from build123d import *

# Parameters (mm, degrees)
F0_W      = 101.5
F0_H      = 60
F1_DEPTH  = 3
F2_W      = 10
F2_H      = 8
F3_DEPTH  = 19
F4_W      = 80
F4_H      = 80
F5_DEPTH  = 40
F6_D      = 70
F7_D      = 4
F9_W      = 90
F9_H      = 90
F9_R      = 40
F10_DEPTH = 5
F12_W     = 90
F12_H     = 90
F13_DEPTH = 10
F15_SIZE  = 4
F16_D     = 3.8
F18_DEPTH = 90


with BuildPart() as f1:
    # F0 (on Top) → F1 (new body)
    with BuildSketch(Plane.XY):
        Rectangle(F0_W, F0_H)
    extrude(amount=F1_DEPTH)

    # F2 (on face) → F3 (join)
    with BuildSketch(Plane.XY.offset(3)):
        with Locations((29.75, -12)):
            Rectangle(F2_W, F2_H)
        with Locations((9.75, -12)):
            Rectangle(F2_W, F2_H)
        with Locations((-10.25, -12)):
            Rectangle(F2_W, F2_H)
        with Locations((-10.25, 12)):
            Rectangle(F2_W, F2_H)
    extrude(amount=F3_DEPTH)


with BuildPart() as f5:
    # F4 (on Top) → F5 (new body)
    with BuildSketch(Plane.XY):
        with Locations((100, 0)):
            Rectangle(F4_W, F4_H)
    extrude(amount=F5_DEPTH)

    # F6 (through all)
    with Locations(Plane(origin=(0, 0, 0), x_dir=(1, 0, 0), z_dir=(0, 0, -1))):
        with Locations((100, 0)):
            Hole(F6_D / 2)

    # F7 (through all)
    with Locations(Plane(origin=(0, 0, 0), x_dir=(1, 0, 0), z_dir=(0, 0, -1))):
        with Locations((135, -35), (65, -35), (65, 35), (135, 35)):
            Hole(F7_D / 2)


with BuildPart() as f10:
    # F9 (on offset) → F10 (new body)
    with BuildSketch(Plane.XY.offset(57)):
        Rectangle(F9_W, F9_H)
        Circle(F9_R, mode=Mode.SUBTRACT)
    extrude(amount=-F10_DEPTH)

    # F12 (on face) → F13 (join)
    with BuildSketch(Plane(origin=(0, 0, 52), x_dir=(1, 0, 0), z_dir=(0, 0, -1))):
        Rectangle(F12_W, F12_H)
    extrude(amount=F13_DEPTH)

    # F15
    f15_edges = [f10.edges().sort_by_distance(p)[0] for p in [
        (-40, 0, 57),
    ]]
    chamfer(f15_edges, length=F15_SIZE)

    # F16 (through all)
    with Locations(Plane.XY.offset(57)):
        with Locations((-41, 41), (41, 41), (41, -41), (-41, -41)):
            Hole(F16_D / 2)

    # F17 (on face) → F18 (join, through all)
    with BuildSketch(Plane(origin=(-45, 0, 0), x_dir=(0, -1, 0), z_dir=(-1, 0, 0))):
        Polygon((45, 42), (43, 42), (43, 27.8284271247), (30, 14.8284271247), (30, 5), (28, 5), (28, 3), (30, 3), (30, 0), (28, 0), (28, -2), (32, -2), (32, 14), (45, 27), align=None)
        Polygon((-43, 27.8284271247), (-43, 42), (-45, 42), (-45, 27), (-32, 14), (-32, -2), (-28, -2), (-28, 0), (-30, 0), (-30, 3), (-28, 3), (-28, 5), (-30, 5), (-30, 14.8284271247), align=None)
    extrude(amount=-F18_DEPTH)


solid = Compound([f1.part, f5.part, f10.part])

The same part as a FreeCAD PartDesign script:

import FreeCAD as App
import Part
import Sketcher

V = App.Vector


def edges_at(feature, points):
    """Names of the edges that pass closest to the given points."""
    edges = feature.Shape.Edges
    near = lambda p: min(range(len(edges)), key=lambda i: edges[i].distToShape(Part.Vertex(*p))[0])
    return sorted({f"Edge{near(p) + 1}" for p in points})

doc = App.newDocument("Part")
body = doc.addObject("PartDesign::Body", "Body")

sketch1 = doc.addObject("Sketcher::SketchObject", "Sketch")
body.addObject(sketch1)
sketch1.AttachmentSupport = (doc.XY_Plane, [""])
sketch1.MapMode = "FlatFace"
sketch1.addGeometry(Part.LineSegment(V(-51, 30, 0), V(-51, -30, 0)), False)
sketch1.addGeometry(Part.LineSegment(V(-51, -30, 0), V(51, -30, 0)), False)
sketch1.addGeometry(Part.LineSegment(V(51, -30, 0), V(51, 30, 0)), False)
sketch1.addGeometry(Part.LineSegment(V(51, 30, 0), V(-51, 30, 0)), False)
sketch1.addConstraint(Sketcher.Constraint("Coincident", 0, 2, 1, 1))
sketch1.addConstraint(Sketcher.Constraint("Coincident", 1, 2, 2, 1))
sketch1.addConstraint(Sketcher.Constraint("Coincident", 2, 2, 3, 1))
sketch1.addConstraint(Sketcher.Constraint("Coincident", 3, 2, 0, 1))
sketch1.addConstraint(Sketcher.Constraint("Vertical", 0))
sketch1.addConstraint(Sketcher.Constraint("Horizontal", 1))
sketch1.addConstraint(Sketcher.Constraint("Vertical", 2))
sketch1.addConstraint(Sketcher.Constraint("Horizontal", 3))
sketch1.addConstraint(Sketcher.Constraint("Symmetric", 0, 2, 2, 2, -1, 1))
sketch1.addConstraint(Sketcher.Constraint("DistanceY", 0, 2, 0, 1, 60.0))
sketch1.addConstraint(Sketcher.Constraint("DistanceX", 1, 1, 1, 2, 101.5))
pad1 = doc.addObject("PartDesign::Pad", "Pad")
body.addObject(pad1)
pad1.Profile = sketch1
pad1.Length = 3

sketch2 = doc.addObject("Sketcher::SketchObject", "Sketch001")
body.addObject(sketch2)
sketch2.AttachmentSupport = (doc.XY_Plane, [""])
sketch2.MapMode = "FlatFace"
sketch2.AttachmentOffset = App.Placement(V(0, 0, 3), App.Rotation())
sketch2.addGeometry(Part.LineSegment(V(25, -8, 0), V(25, -16, 0)), False)
sketch2.addGeometry(Part.LineSegment(V(25, -16, 0), V(35, -16, 0)), False)
sketch2.addGeometry(Part.LineSegment(V(35, -16, 0), V(35, -8, 0)), False)
sketch2.addGeometry(Part.LineSegment(V(35, -8, 0), V(25, -8, 0)), False)
sketch2.addGeometry(Part.LineSegment(V(5, -8, 0), V(5, -16, 0)), False)
sketch2.addGeometry(Part.LineSegment(V(5, -16, 0), V(15, -16, 0)), False)
sketch2.addGeometry(Part.LineSegment(V(15, -16, 0), V(15, -8, 0)), False)
sketch2.addGeometry(Part.LineSegment(V(15, -8, 0), V(5, -8, 0)), False)
sketch2.addGeometry(Part.LineSegment(V(-15, -8, 0), V(-15, -16, 0)), False)
sketch2.addGeometry(Part.LineSegment(V(-15, -16, 0), V(-5, -16, 0)), False)
sketch2.addGeometry(Part.LineSegment(V(-5, -16, 0), V(-5, -8, 0)), False)
sketch2.addGeometry(Part.LineSegment(V(-5, -8, 0), V(-15, -8, 0)), False)
sketch2.addGeometry(Part.LineSegment(V(-15, 16, 0), V(-15, 8, 0)), False)
sketch2.addGeometry(Part.LineSegment(V(-15, 8, 0), V(-5, 8, 0)), False)
sketch2.addGeometry(Part.LineSegment(V(-5, 8, 0), V(-5, 16, 0)), False)
sketch2.addGeometry(Part.LineSegment(V(-5, 16, 0), V(-15, 16, 0)), False)
sketch2.addConstraint(Sketcher.Constraint("Coincident", 0, 2, 1, 1))
sketch2.addConstraint(Sketcher.Constraint("Coincident", 1, 2, 2, 1))
sketch2.addConstraint(Sketcher.Constraint("Coincident", 2, 2, 3, 1))
sketch2.addConstraint(Sketcher.Constraint("Coincident", 3, 2, 0, 1))
sketch2.addConstraint(Sketcher.Constraint("Coincident", 4, 2, 5, 1))
sketch2.addConstraint(Sketcher.Constraint("Coincident", 5, 2, 6, 1))
sketch2.addConstraint(Sketcher.Constraint("Coincident", 6, 2, 7, 1))
sketch2.addConstraint(Sketcher.Constraint("Coincident", 7, 2, 4, 1))
sketch2.addConstraint(Sketcher.Constraint("Coincident", 8, 2, 9, 1))
sketch2.addConstraint(Sketcher.Constraint("Coincident", 9, 2, 10, 1))
sketch2.addConstraint(Sketcher.Constraint("Coincident", 10, 2, 11, 1))
sketch2.addConstraint(Sketcher.Constraint("Coincident", 11, 2, 8, 1))
sketch2.addConstraint(Sketcher.Constraint("Coincident", 12, 2, 13, 1))
sketch2.addConstraint(Sketcher.Constraint("Coincident", 13, 2, 14, 1))
sketch2.addConstraint(Sketcher.Constraint("Coincident", 14, 2, 15, 1))
sketch2.addConstraint(Sketcher.Constraint("Coincident", 15, 2, 12, 1))
sketch2.addConstraint(Sketcher.Constraint("Vertical", 0))
sketch2.addConstraint(Sketcher.Constraint("Horizontal", 1))
sketch2.addConstraint(Sketcher.Constraint("Vertical", 2))
sketch2.addConstraint(Sketcher.Constraint("Horizontal", 3))
sketch2.addConstraint(Sketcher.Constraint("Vertical", 4))
sketch2.addConstraint(Sketcher.Constraint("Horizontal", 5))
sketch2.addConstraint(Sketcher.Constraint("Vertical", 6))
sketch2.addConstraint(Sketcher.Constraint("Horizontal", 7))
sketch2.addConstraint(Sketcher.Constraint("Vertical", 8))
sketch2.addConstraint(Sketcher.Constraint("Horizontal", 9))
sketch2.addConstraint(Sketcher.Constraint("Vertical", 10))
sketch2.addConstraint(Sketcher.Constraint("Horizontal", 11))
sketch2.addConstraint(Sketcher.Constraint("Vertical", 12))
sketch2.addConstraint(Sketcher.Constraint("Horizontal", 13))
sketch2.addConstraint(Sketcher.Constraint("Vertical", 14))
sketch2.addConstraint(Sketcher.Constraint("Horizontal", 15))
sketch2.addConstraint(Sketcher.Constraint("Symmetric", 11, 2, 12, 2, -1))
sketch2.addConstraint(Sketcher.Constraint("Symmetric", 9, 2, 14, 2, -1))
sketch2.addConstraint(Sketcher.Constraint("Horizontal", 1, 2, 4, 2))
sketch2.addConstraint(Sketcher.Constraint("Horizontal", 3, 2, 6, 2))
sketch2.addConstraint(Sketcher.Constraint("Horizontal", 5, 2, 8, 2))
sketch2.addConstraint(Sketcher.Constraint("Horizontal", 7, 2, 10, 2))
sketch2.addConstraint(Sketcher.Constraint("Equal", 3, 5))
sketch2.addConstraint(Sketcher.Constraint("Equal", 7, 9))
sketch2.addConstraint(Sketcher.Constraint("DistanceX", 1, 1, 1, 2, 10.0))
sketch2.addConstraint(Sketcher.Constraint("DistanceY", 0, 2, 0, 1, 8.0))
sketch2.addConstraint(Sketcher.Constraint("DistanceY", 0, 2, -1, 1, 16.0))
sketch2.addConstraint(Sketcher.Constraint("DistanceX", 4, 2, 0, 2, 20.0))
sketch2.addConstraint(Sketcher.Constraint("DistanceX", 8, 2, 4, 2, 20.0))
sketch2.addConstraint(Sketcher.Constraint("DistanceX", -1, 1, 0, 2, 24.75))
pad2 = doc.addObject("PartDesign::Pad", "Pad001")
body.addObject(pad2)
pad2.Profile = sketch2
pad2.Length = 19
body2 = doc.addObject("PartDesign::Body", "Body001")

sketch3 = doc.addObject("Sketcher::SketchObject", "Sketch002")
body2.addObject(sketch3)
sketch3.AttachmentSupport = (doc.getObject("XY_Plane001"), [""])
sketch3.MapMode = "FlatFace"
sketch3.addGeometry(Part.LineSegment(V(60, 40, 0), V(60, -40, 0)), False)
sketch3.addGeometry(Part.LineSegment(V(60, -40, 0), V(140, -40, 0)), False)
sketch3.addGeometry(Part.LineSegment(V(140, -40, 0), V(140, 40, 0)), False)
sketch3.addGeometry(Part.LineSegment(V(140, 40, 0), V(60, 40, 0)), False)
sketch3.addConstraint(Sketcher.Constraint("Coincident", 0, 2, 1, 1))
sketch3.addConstraint(Sketcher.Constraint("Coincident", 1, 2, 2, 1))
sketch3.addConstraint(Sketcher.Constraint("Coincident", 2, 2, 3, 1))
sketch3.addConstraint(Sketcher.Constraint("Coincident", 3, 2, 0, 1))
sketch3.addConstraint(Sketcher.Constraint("Vertical", 0))
sketch3.addConstraint(Sketcher.Constraint("Horizontal", 1))
sketch3.addConstraint(Sketcher.Constraint("Vertical", 2))
sketch3.addConstraint(Sketcher.Constraint("Horizontal", 3))
sketch3.addConstraint(Sketcher.Constraint("Equal", 3, 0))
sketch3.addConstraint(Sketcher.Constraint("DistanceX", 1, 1, 1, 2, 80.0))
sketch3.addConstraint(Sketcher.Constraint("DistanceX", -1, 1, 0, 2, 60.0))
sketch3.addConstraint(Sketcher.Constraint("DistanceY", 0, 2, -1, 1, 40.0))
pad3 = doc.addObject("PartDesign::Pad", "Pad002")
body2.addObject(pad3)
pad3.Profile = sketch3
pad3.Length = 40

sketch4 = doc.addObject("Sketcher::SketchObject", "Sketch003")
body2.addObject(sketch4)
sketch4.AttachmentSupport = (doc.getObject("XY_Plane001"), [""])
sketch4.MapMode = "FlatFace"
sketch4.addGeometry(Part.Circle(V(100, 0, 0), V(0, 0, 1), 35), False)
sketch4.addConstraint(Sketcher.Constraint("PointOnObject", 0, 3, -1))
sketch4.addConstraint(Sketcher.Constraint("Diameter", 0, 70.0))
sketch4.addConstraint(Sketcher.Constraint("DistanceX", -1, 1, 0, 3, 100.0))
doc.recompute()
hole = doc.addObject("PartDesign::Hole", "Hole")
body2.addObject(hole)
hole.Profile = sketch4
hole.ThreadType = "None"
hole.Diameter = 70
hole.DepthType = "ThroughAll"
hole.Reversed = True

sketch5 = doc.addObject("Sketcher::SketchObject", "Sketch004")
body2.addObject(sketch5)
sketch5.AttachmentSupport = (doc.getObject("XY_Plane001"), [""])
sketch5.MapMode = "FlatFace"
sketch5.addGeometry(Part.Circle(V(135, 35, 0), V(0, 0, 1), 2), False)
sketch5.addGeometry(Part.Circle(V(65, 35, 0), V(0, 0, 1), 2), False)
sketch5.addGeometry(Part.Circle(V(65, -35, 0), V(0, 0, 1), 2), False)
sketch5.addGeometry(Part.Circle(V(135, -35, 0), V(0, 0, 1), 2), False)
sketch5.addConstraint(Sketcher.Constraint("Equal", 0, 1))
sketch5.addConstraint(Sketcher.Constraint("Equal", 1, 2))
sketch5.addConstraint(Sketcher.Constraint("Equal", 2, 3))
sketch5.addConstraint(Sketcher.Constraint("Symmetric", 1, 3, 2, 3, -1))
sketch5.addConstraint(Sketcher.Constraint("Symmetric", 0, 3, 3, 3, -1))
sketch5.addConstraint(Sketcher.Constraint("Horizontal", 0, 3, 1, 3))
sketch5.addConstraint(Sketcher.Constraint("Diameter", 0, 4.0))
sketch5.addConstraint(Sketcher.Constraint("DistanceX", -1, 1, 0, 3, 135.0))
sketch5.addConstraint(Sketcher.Constraint("DistanceY", -1, 1, 0, 3, 35.0))
sketch5.addConstraint(Sketcher.Constraint("DistanceX", -1, 1, 1, 3, 65.0))
doc.recompute()
hole2 = doc.addObject("PartDesign::Hole", "Hole001")
body2.addObject(hole2)
hole2.Profile = sketch5
hole2.ThreadType = "None"
hole2.Diameter = 4
hole2.DepthType = "ThroughAll"
hole2.Reversed = True
body3 = doc.addObject("PartDesign::Body", "Body002")

sketch6 = doc.addObject("Sketcher::SketchObject", "Sketch005")
body3.addObject(sketch6)
sketch6.AttachmentSupport = (doc.getObject("XY_Plane002"), [""])
sketch6.MapMode = "FlatFace"
sketch6.AttachmentOffset = App.Placement(V(0, 0, 57), App.Rotation())
sketch6.addGeometry(Part.LineSegment(V(-45, 45, 0), V(-45, -45, 0)), False)
sketch6.addGeometry(Part.LineSegment(V(-45, -45, 0), V(45, -45, 0)), False)
sketch6.addGeometry(Part.LineSegment(V(45, -45, 0), V(45, 45, 0)), False)
sketch6.addGeometry(Part.LineSegment(V(45, 45, 0), V(-45, 45, 0)), False)
sketch6.addGeometry(Part.Circle(V(0, 0, 0), V(0, 0, 1), 40), False)
sketch6.addConstraint(Sketcher.Constraint("Coincident", 0, 2, 1, 1))
sketch6.addConstraint(Sketcher.Constraint("Coincident", 1, 2, 2, 1))
sketch6.addConstraint(Sketcher.Constraint("Coincident", 2, 2, 3, 1))
sketch6.addConstraint(Sketcher.Constraint("Coincident", 3, 2, 0, 1))
sketch6.addConstraint(Sketcher.Constraint("Vertical", 0))
sketch6.addConstraint(Sketcher.Constraint("Horizontal", 1))
sketch6.addConstraint(Sketcher.Constraint("Vertical", 2))
sketch6.addConstraint(Sketcher.Constraint("Horizontal", 3))
sketch6.addConstraint(Sketcher.Constraint("Coincident", 4, 3, -1, 1))
sketch6.addConstraint(Sketcher.Constraint("Symmetric", 0, 2, 2, 2, -1, 1))
sketch6.addConstraint(Sketcher.Constraint("Equal", 3, 0))
sketch6.addConstraint(Sketcher.Constraint("Diameter", 4, 80.0))
sketch6.addConstraint(Sketcher.Constraint("DistanceX", 1, 1, 1, 2, 90.0))
pad4 = doc.addObject("PartDesign::Pad", "Pad003")
body3.addObject(pad4)
pad4.Profile = sketch6
pad4.Length = 5
pad4.Reversed = True

sketch7 = doc.addObject("Sketcher::SketchObject", "Sketch006")
body3.addObject(sketch7)
sketch7.AttachmentSupport = (doc.getObject("XY_Plane002"), [""])
sketch7.MapMode = "FlatFace"
sketch7.AttachmentOffset = App.Placement(V(0, 0, 52), App.Rotation())
sketch7.addGeometry(Part.LineSegment(V(-45, -45, 0), V(-45, 45, 0)), False)
sketch7.addGeometry(Part.LineSegment(V(-45, 45, 0), V(45, 45, 0)), False)
sketch7.addGeometry(Part.LineSegment(V(45, 45, 0), V(45, -45, 0)), False)
sketch7.addGeometry(Part.LineSegment(V(45, -45, 0), V(-45, -45, 0)), False)
sketch7.addConstraint(Sketcher.Constraint("Coincident", 0, 2, 1, 1))
sketch7.addConstraint(Sketcher.Constraint("Coincident", 1, 2, 2, 1))
sketch7.addConstraint(Sketcher.Constraint("Coincident", 2, 2, 3, 1))
sketch7.addConstraint(Sketcher.Constraint("Coincident", 3, 2, 0, 1))
sketch7.addConstraint(Sketcher.Constraint("Vertical", 0))
sketch7.addConstraint(Sketcher.Constraint("Horizontal", 1))
sketch7.addConstraint(Sketcher.Constraint("Vertical", 2))
sketch7.addConstraint(Sketcher.Constraint("Horizontal", 3))
sketch7.addConstraint(Sketcher.Constraint("Symmetric", 0, 2, 2, 2, -1, 1))
sketch7.addConstraint(Sketcher.Constraint("Equal", 3, 0))
sketch7.addConstraint(Sketcher.Constraint("DistanceX", 1, 1, 1, 2, 90.0))
pad5 = doc.addObject("PartDesign::Pad", "Pad004")
body3.addObject(pad5)
pad5.Profile = sketch7
pad5.Length = 10
pad5.Reversed = True
doc.recompute()

chamfer = doc.addObject("PartDesign::Chamfer", "Chamfer")
body3.addObject(chamfer)
chamfer.Base = (pad5, edges_at(pad5, [(-40, 0, 57)]))
chamfer.Size = 4

sketch8 = doc.addObject("Sketcher::SketchObject", "Sketch007")
body3.addObject(sketch8)
sketch8.AttachmentSupport = (doc.getObject("XY_Plane002"), [""])
sketch8.MapMode = "FlatFace"
sketch8.AttachmentOffset = App.Placement(V(0, 0, 57), App.Rotation())
sketch8.addGeometry(Part.Circle(V(-41, 41, 0), V(0, 0, 1), 1.9), False)
sketch8.addGeometry(Part.Circle(V(41, 41, 0), V(0, 0, 1), 1.9), False)
sketch8.addGeometry(Part.Circle(V(41, -41, 0), V(0, 0, 1), 1.9), False)
sketch8.addGeometry(Part.Circle(V(-41, -41, 0), V(0, 0, 1), 1.9), False)
sketch8.addConstraint(Sketcher.Constraint("Equal", 0, 1))
sketch8.addConstraint(Sketcher.Constraint("Equal", 1, 2))
sketch8.addConstraint(Sketcher.Constraint("Equal", 2, 3))
sketch8.addConstraint(Sketcher.Constraint("Symmetric", 0, 3, 2, 3, -1, 1))
sketch8.addConstraint(Sketcher.Constraint("Symmetric", 1, 3, 3, 3, -1, 1))
sketch8.addConstraint(Sketcher.Constraint("Symmetric", 0, 3, 1, 3, -2))
sketch8.addConstraint(Sketcher.Constraint("Diameter", 0, 3.8))
sketch8.addConstraint(Sketcher.Constraint("DistanceX", 0, 3, -1, 1, 41.0))
sketch8.addConstraint(Sketcher.Constraint("DistanceY", -1, 1, 0, 3, 41.0))
doc.recompute()
hole3 = doc.addObject("PartDesign::Hole", "Hole002")
body3.addObject(hole3)
hole3.Profile = sketch8
hole3.ThreadType = "None"
hole3.Diameter = 3.8
hole3.DepthType = "ThroughAll"

sketch9 = doc.addObject("Sketcher::SketchObject", "Sketch008")
body3.addObject(sketch9)
sketch9.AttachmentSupport = (doc.getObject("YZ_Plane002"), [""])
sketch9.MapMode = "FlatFace"
sketch9.AttachmentOffset = App.Placement(V(0, 0, -45), App.Rotation())
sketch9.addGeometry(Part.LineSegment(V(-45, 42, 0), V(-43, 42, 0)), False)
sketch9.addGeometry(Part.LineSegment(V(-43, 42, 0), V(-43, 27.8, 0)), False)
sketch9.addGeometry(Part.LineSegment(V(-43, 27.8, 0), V(-30, 14.8, 0)), False)
sketch9.addGeometry(Part.LineSegment(V(-30, 14.8, 0), V(-30, 5, 0)), False)
sketch9.addGeometry(Part.LineSegment(V(-30, 5, 0), V(-28, 5, 0)), False)
sketch9.addGeometry(Part.LineSegment(V(-28, 5, 0), V(-28, 3, 0)), False)
sketch9.addGeometry(Part.LineSegment(V(-28, 3, 0), V(-30, 3, 0)), False)
sketch9.addGeometry(Part.LineSegment(V(-30, 3, 0), V(-30, 0, 0)), False)
sketch9.addGeometry(Part.LineSegment(V(-30, 0, 0), V(-28, 0, 0)), False)
sketch9.addGeometry(Part.LineSegment(V(-28, 0, 0), V(-28, -2, 0)), False)
sketch9.addGeometry(Part.LineSegment(V(-28, -2, 0), V(-32, -2, 0)), False)
sketch9.addGeometry(Part.LineSegment(V(-32, -2, 0), V(-32, 14, 0)), False)
sketch9.addGeometry(Part.LineSegment(V(-32, 14, 0), V(-45, 27, 0)), False)
sketch9.addGeometry(Part.LineSegment(V(-45, 27, 0), V(-45, 42, 0)), False)
sketch9.addGeometry(Part.LineSegment(V(43, 27.8, 0), V(43, 42, 0)), False)
sketch9.addGeometry(Part.LineSegment(V(43, 42, 0), V(45, 42, 0)), False)
sketch9.addGeometry(Part.LineSegment(V(45, 42, 0), V(45, 27, 0)), False)
sketch9.addGeometry(Part.LineSegment(V(45, 27, 0), V(32, 14, 0)), False)
sketch9.addGeometry(Part.LineSegment(V(32, 14, 0), V(32, -2, 0)), False)
sketch9.addGeometry(Part.LineSegment(V(32, -2, 0), V(28, -2, 0)), False)
sketch9.addGeometry(Part.LineSegment(V(28, -2, 0), V(28, 0, 0)), False)
sketch9.addGeometry(Part.LineSegment(V(28, 0, 0), V(30, 0, 0)), False)
sketch9.addGeometry(Part.LineSegment(V(30, 0, 0), V(30, 3, 0)), False)
sketch9.addGeometry(Part.LineSegment(V(30, 3, 0), V(28, 3, 0)), False)
sketch9.addGeometry(Part.LineSegment(V(28, 3, 0), V(28, 5, 0)), False)
sketch9.addGeometry(Part.LineSegment(V(28, 5, 0), V(30, 5, 0)), False)
sketch9.addGeometry(Part.LineSegment(V(30, 5, 0), V(30, 14.8, 0)), False)
sketch9.addGeometry(Part.LineSegment(V(30, 14.8, 0), V(43, 27.8, 0)), False)
sketch9.addConstraint(Sketcher.Constraint("Coincident", 0, 2, 1, 1))
sketch9.addConstraint(Sketcher.Constraint("Coincident", 1, 2, 2, 1))
sketch9.addConstraint(Sketcher.Constraint("Coincident", 2, 2, 3, 1))
sketch9.addConstraint(Sketcher.Constraint("Coincident", 3, 2, 4, 1))
sketch9.addConstraint(Sketcher.Constraint("Coincident", 4, 2, 5, 1))
sketch9.addConstraint(Sketcher.Constraint("Coincident", 5, 2, 6, 1))
sketch9.addConstraint(Sketcher.Constraint("Coincident", 6, 2, 7, 1))
sketch9.addConstraint(Sketcher.Constraint("Coincident", 7, 2, 8, 1))
sketch9.addConstraint(Sketcher.Constraint("Coincident", 8, 2, 9, 1))
sketch9.addConstraint(Sketcher.Constraint("Coincident", 9, 2, 10, 1))
sketch9.addConstraint(Sketcher.Constraint("Coincident", 10, 2, 11, 1))
sketch9.addConstraint(Sketcher.Constraint("Coincident", 11, 2, 12, 1))
sketch9.addConstraint(Sketcher.Constraint("Coincident", 12, 2, 13, 1))
sketch9.addConstraint(Sketcher.Constraint("Coincident", 13, 2, 0, 1))
sketch9.addConstraint(Sketcher.Constraint("Coincident", 14, 2, 15, 1))
sketch9.addConstraint(Sketcher.Constraint("Coincident", 15, 2, 16, 1))
sketch9.addConstraint(Sketcher.Constraint("Coincident", 16, 2, 17, 1))
sketch9.addConstraint(Sketcher.Constraint("Coincident", 17, 2, 18, 1))
sketch9.addConstraint(Sketcher.Constraint("Coincident", 18, 2, 19, 1))
sketch9.addConstraint(Sketcher.Constraint("Coincident", 19, 2, 20, 1))
sketch9.addConstraint(Sketcher.Constraint("Coincident", 20, 2, 21, 1))
sketch9.addConstraint(Sketcher.Constraint("Coincident", 21, 2, 22, 1))
sketch9.addConstraint(Sketcher.Constraint("Coincident", 22, 2, 23, 1))
sketch9.addConstraint(Sketcher.Constraint("Coincident", 23, 2, 24, 1))
sketch9.addConstraint(Sketcher.Constraint("Coincident", 24, 2, 25, 1))
sketch9.addConstraint(Sketcher.Constraint("Coincident", 25, 2, 26, 1))
sketch9.addConstraint(Sketcher.Constraint("Coincident", 26, 2, 27, 1))
sketch9.addConstraint(Sketcher.Constraint("Coincident", 27, 2, 14, 1))
sketch9.addConstraint(Sketcher.Constraint("Horizontal", 0))
sketch9.addConstraint(Sketcher.Constraint("Vertical", 1))
sketch9.addConstraint(Sketcher.Constraint("Vertical", 3))
sketch9.addConstraint(Sketcher.Constraint("Horizontal", 4))
sketch9.addConstraint(Sketcher.Constraint("Vertical", 5))
sketch9.addConstraint(Sketcher.Constraint("Horizontal", 6))
sketch9.addConstraint(Sketcher.Constraint("Vertical", 7))
sketch9.addConstraint(Sketcher.Constraint("Horizontal", 8))
sketch9.addConstraint(Sketcher.Constraint("Vertical", 9))
sketch9.addConstraint(Sketcher.Constraint("Horizontal", 10))
sketch9.addConstraint(Sketcher.Constraint("Vertical", 11))
sketch9.addConstraint(Sketcher.Constraint("Vertical", 13))
sketch9.addConstraint(Sketcher.Constraint("Vertical", 14))
sketch9.addConstraint(Sketcher.Constraint("Horizontal", 15))
sketch9.addConstraint(Sketcher.Constraint("Vertical", 16))
sketch9.addConstraint(Sketcher.Constraint("Vertical", 18))
sketch9.addConstraint(Sketcher.Constraint("Horizontal", 19))
sketch9.addConstraint(Sketcher.Constraint("Vertical", 20))
sketch9.addConstraint(Sketcher.Constraint("Horizontal", 21))
sketch9.addConstraint(Sketcher.Constraint("Vertical", 22))
sketch9.addConstraint(Sketcher.Constraint("Horizontal", 23))
sketch9.addConstraint(Sketcher.Constraint("Vertical", 24))
sketch9.addConstraint(Sketcher.Constraint("Horizontal", 25))
sketch9.addConstraint(Sketcher.Constraint("Vertical", 26))
sketch9.addConstraint(Sketcher.Constraint("Symmetric", 8, 2, 20, 2, -1, 1))
sketch9.addConstraint(Sketcher.Constraint("Symmetric", 0, 2, 14, 2, -2))
sketch9.addConstraint(Sketcher.Constraint("Symmetric", 12, 2, 16, 2, -2))
sketch9.addConstraint(Sketcher.Constraint("Symmetric", 11, 2, 17, 2, -2))
sketch9.addConstraint(Sketcher.Constraint("Symmetric", 7, 2, 21, 2, -2))
sketch9.addConstraint(Sketcher.Constraint("Symmetric", 5, 2, 23, 2, -2))
sketch9.addConstraint(Sketcher.Constraint("Symmetric", 3, 2, 25, 2, -2))
sketch9.addConstraint(Sketcher.Constraint("Parallel", 2, 12))
sketch9.addConstraint(Sketcher.Constraint("Perpendicular", 12, 17))
sketch9.addConstraint(Sketcher.Constraint("Parallel", 17, 27))
sketch9.addConstraint(Sketcher.Constraint("Horizontal", 10, 2, 18, 2))
sketch9.addConstraint(Sketcher.Constraint("Horizontal", 2, 2, 26, 2))
sketch9.addConstraint(Sketcher.Constraint("Vertical", 3, 2, 6, 2))
sketch9.addConstraint(Sketcher.Constraint("Vertical", 5, 2, 8, 2))
sketch9.addConstraint(Sketcher.Constraint("Equal", 0, 4))
sketch9.addConstraint(Sketcher.Constraint("Equal", 25, 5))
sketch9.addConstraint(Sketcher.Constraint("Equal", 5, 9))
sketch9.addConstraint(Sketcher.Constraint("Equal", 2, 12))
sketch9.addConstraint(Sketcher.Constraint("DistanceX", 0, 1, 0, 2, 2.0))
sketch9.addConstraint(Sketcher.Constraint("DistanceY", 7, 2, 7, 1, 3.0))
sketch9.addConstraint(Sketcher.Constraint("DistanceY", 11, 1, 11, 2, 16.0))
sketch9.addConstraint(Sketcher.Constraint("DistanceY", 13, 1, 13, 2, 15.0))
sketch9.addConstraint(Sketcher.Constraint("DistanceX", 0, 2, -1, 1, 43.0))
sketch9.addConstraint(Sketcher.Constraint("DistanceY", -1, 1, 0, 2, 42.0))
sketch9.addConstraint(Sketcher.Constraint("DistanceY", 1, 2, 1, 1, 14.171573))
pad6 = doc.addObject("PartDesign::Pad", "Pad005")
body3.addObject(pad6)
pad6.Profile = sketch9
pad6.Length = 90

doc.recompute()
